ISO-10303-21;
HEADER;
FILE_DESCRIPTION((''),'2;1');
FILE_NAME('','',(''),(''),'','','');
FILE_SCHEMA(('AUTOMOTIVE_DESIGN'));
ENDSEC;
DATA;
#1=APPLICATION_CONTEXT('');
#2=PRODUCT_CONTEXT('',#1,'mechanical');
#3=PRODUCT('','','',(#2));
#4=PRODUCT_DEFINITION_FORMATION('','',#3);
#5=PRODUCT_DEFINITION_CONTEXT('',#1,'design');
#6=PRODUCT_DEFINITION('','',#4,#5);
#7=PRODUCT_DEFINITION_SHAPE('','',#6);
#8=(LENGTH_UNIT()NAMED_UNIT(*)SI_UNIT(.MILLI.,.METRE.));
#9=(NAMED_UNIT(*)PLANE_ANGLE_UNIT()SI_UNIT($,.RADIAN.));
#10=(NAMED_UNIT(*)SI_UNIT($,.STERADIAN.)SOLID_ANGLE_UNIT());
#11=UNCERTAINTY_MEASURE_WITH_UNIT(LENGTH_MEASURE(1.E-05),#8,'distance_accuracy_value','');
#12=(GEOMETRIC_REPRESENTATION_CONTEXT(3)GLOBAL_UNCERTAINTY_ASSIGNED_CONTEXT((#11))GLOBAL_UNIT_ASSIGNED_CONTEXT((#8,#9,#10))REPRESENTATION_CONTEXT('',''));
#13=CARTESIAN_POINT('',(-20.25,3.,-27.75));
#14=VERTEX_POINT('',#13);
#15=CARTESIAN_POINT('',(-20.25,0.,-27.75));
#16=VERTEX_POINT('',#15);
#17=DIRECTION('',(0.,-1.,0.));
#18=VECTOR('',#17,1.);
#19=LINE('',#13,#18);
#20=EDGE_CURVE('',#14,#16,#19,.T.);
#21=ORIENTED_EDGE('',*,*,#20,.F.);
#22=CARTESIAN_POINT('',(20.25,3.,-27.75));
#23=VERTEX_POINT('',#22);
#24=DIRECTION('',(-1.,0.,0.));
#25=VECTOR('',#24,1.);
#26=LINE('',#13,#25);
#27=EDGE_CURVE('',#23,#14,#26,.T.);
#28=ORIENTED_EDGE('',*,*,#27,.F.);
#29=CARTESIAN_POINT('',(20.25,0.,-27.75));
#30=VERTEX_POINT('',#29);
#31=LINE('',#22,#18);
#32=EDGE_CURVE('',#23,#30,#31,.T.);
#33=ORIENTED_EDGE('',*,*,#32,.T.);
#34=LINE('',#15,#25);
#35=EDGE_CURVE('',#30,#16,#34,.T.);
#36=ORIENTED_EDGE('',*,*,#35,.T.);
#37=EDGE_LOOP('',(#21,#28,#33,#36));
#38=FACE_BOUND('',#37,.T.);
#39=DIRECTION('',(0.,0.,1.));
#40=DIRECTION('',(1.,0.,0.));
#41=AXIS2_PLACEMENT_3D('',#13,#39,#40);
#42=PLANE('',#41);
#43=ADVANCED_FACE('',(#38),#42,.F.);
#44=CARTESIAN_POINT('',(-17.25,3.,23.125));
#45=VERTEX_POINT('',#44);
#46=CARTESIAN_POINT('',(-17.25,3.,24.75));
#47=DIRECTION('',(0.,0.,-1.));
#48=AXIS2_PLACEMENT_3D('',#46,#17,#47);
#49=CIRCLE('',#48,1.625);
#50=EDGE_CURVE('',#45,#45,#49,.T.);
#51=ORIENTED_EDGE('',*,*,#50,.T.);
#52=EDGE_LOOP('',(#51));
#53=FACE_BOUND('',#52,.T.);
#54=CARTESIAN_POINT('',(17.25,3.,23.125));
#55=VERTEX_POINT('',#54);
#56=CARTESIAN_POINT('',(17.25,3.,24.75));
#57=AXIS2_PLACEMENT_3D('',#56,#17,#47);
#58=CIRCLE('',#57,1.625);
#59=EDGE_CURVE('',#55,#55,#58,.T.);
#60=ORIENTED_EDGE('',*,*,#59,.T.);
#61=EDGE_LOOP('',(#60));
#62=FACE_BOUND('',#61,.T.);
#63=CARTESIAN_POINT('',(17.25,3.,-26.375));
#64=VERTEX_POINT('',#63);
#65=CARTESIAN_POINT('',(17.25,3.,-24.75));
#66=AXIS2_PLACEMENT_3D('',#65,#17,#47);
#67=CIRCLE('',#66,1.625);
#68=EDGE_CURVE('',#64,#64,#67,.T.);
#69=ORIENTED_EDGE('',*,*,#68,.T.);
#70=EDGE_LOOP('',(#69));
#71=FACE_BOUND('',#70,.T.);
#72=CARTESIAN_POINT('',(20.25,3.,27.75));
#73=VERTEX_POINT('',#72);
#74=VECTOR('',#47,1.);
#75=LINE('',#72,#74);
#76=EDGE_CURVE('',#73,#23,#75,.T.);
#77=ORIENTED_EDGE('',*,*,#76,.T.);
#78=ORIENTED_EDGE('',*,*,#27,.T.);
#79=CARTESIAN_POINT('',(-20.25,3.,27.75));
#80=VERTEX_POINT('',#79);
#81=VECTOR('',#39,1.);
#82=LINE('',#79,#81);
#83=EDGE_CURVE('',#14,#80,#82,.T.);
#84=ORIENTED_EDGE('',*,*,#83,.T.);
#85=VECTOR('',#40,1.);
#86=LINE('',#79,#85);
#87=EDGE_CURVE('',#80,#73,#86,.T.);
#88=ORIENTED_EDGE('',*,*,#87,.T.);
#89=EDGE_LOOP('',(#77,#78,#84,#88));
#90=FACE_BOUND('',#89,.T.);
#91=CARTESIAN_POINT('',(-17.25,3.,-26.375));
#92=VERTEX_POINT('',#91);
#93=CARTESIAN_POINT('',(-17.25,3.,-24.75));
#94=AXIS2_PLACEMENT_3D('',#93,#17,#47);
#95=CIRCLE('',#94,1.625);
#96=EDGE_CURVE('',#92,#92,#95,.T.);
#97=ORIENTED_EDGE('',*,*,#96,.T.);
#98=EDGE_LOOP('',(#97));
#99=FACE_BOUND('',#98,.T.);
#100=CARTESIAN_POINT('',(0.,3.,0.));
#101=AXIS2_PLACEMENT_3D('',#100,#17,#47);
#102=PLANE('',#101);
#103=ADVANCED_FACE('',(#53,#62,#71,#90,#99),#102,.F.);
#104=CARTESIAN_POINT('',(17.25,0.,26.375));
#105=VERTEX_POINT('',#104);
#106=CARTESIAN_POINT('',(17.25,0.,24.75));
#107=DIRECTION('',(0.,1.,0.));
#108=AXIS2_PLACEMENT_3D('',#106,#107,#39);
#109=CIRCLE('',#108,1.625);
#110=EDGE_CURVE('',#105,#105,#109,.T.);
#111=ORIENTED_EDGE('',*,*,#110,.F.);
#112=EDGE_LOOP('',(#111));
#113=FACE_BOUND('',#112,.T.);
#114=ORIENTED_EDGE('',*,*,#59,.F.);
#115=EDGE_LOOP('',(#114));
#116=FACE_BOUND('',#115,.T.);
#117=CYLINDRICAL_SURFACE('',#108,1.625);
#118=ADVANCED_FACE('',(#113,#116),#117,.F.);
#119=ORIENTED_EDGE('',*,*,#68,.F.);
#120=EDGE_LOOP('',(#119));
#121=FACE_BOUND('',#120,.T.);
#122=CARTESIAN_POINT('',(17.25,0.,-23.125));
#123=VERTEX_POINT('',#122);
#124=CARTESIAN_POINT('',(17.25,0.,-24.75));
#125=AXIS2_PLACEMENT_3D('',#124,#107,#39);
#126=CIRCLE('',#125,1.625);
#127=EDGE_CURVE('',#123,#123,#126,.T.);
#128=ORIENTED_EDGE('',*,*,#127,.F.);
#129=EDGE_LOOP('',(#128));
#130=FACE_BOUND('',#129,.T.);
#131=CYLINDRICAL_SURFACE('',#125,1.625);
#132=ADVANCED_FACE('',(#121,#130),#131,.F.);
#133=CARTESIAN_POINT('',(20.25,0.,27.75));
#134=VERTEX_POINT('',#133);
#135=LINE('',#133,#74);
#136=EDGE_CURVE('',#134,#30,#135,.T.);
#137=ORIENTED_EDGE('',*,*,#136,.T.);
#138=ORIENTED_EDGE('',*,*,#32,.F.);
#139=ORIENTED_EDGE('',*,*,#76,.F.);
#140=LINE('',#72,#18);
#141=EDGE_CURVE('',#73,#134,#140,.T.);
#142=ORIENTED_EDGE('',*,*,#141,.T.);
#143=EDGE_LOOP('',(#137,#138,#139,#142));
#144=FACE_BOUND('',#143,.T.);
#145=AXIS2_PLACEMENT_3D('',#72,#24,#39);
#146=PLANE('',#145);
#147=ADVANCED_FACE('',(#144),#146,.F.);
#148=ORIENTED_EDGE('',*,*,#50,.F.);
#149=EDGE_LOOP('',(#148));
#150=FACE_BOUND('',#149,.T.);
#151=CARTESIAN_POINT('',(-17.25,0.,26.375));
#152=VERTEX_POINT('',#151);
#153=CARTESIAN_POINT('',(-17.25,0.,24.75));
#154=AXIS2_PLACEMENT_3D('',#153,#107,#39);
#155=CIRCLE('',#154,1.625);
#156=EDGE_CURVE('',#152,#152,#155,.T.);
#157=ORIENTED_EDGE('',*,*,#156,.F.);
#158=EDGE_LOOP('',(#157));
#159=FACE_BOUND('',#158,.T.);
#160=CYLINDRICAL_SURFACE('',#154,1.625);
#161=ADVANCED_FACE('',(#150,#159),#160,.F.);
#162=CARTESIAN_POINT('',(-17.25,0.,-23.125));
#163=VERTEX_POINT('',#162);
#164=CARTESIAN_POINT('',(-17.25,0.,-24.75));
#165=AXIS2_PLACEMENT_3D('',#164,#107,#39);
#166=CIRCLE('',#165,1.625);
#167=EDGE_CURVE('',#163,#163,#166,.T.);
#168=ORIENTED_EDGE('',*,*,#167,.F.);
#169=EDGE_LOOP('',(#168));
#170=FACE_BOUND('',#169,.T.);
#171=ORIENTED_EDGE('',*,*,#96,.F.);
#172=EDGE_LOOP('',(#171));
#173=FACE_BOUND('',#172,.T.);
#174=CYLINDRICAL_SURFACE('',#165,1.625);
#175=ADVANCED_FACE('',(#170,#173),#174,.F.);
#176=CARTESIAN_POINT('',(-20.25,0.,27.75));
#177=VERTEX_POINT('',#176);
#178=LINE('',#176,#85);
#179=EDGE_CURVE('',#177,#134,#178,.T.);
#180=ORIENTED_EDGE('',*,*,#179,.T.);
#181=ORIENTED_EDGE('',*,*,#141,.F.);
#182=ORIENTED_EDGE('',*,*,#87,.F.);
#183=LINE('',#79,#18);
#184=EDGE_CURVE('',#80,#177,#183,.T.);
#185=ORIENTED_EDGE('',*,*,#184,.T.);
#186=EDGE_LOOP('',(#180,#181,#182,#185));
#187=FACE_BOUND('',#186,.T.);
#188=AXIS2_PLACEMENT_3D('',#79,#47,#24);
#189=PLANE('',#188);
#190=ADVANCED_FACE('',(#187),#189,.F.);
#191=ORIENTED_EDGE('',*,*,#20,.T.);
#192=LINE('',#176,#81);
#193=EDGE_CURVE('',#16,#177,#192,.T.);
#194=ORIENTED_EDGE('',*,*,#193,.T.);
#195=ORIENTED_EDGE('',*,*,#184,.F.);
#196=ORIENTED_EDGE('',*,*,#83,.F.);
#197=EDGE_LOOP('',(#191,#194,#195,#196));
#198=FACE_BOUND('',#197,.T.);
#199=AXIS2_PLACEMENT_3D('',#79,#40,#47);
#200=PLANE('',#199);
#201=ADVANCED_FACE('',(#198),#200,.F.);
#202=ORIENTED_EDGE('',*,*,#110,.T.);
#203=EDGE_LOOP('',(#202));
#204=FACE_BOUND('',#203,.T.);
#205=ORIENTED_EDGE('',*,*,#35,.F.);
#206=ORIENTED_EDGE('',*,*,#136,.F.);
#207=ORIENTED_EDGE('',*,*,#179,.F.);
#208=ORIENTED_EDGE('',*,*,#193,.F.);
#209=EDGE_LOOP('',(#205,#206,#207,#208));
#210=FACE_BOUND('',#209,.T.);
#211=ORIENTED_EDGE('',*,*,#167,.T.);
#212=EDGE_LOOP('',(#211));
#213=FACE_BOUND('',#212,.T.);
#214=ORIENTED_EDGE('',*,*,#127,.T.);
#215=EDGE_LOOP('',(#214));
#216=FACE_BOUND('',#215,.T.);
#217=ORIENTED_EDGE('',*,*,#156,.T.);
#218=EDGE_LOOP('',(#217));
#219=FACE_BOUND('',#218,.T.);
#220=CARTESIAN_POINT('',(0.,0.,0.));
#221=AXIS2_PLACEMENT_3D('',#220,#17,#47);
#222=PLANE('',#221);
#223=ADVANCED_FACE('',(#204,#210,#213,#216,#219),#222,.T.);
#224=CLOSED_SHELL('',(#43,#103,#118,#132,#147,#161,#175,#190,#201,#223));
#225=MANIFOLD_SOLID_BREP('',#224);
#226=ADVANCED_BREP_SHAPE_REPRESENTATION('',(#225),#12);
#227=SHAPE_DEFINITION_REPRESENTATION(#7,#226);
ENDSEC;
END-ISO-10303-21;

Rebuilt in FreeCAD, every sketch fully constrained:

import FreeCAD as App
import Part
import Sketcher
from FreeCAD import Vector


def add_polygon(sketch, points):
    """Adds a closed chain of lines whose ends are joined by coincident constraints."""
    first, n = sketch.GeometryCount, len(points)
    for a, b in zip(points, points[1:] + points[:1]):
        sketch.addGeometry(Part.LineSegment(App.Vector(*a, 0), App.Vector(*b, 0)), False)
    for i in range(n):
        sketch.addConstraint(Sketcher.Constraint("Coincident", first + i, 2, first + (i + 1) % n, 1))

doc = App.newDocument("Part")
params = doc.addObject("Spreadsheet::Sheet", "Params")
for row, (alias, value) in enumerate([
    ("sketch1_width", "40.5 mm"),
    ("sketch1_height", "55.5 mm"),
    ("pad1_length", "3 mm"),
    ("sketch2_diameter", "3.25 mm"),
], start=1):
    params.set(f"A{row}", alias)
    params.set(f"B{row}", "=" + value)
    params.setAlias(f"B{row}", alias)

body = doc.addObject("PartDesign::Body", "Body")

sketch1 = body.newObject("Sketcher::SketchObject", "Sketch")
sketch1.AttachmentSupport = (doc.getObject("XZ_Plane"), [""])
sketch1.MapMode = "FlatFace"
add_polygon(sketch1, [(-20, -28), (-20, 28), (20, 28), (20, -28)])
sketch1.addConstraint(Sketcher.Constraint("Vertical", 0))
sketch1.addConstraint(Sketcher.Constraint("Horizontal", 1))
sketch1.addConstraint(Sketcher.Constraint("Vertical", 2))
sketch1.addConstraint(Sketcher.Constraint("Horizontal", 3))
sketch1.addConstraint(Sketcher.Constraint("Symmetric", 0, 2, 2, 2, -1, 1))
sketch1.addConstraint(Sketcher.Constraint("DistanceX", 1, 1, 1, 2, 40.5))
sketch1.addConstraint(Sketcher.Constraint("DistanceY", 0, 1, 0, 2, 55.5))
sketch1.setExpression("Constraints[9]", "Params.sketch1_width")
sketch1.setExpression("Constraints[10]", "Params.sketch1_height")
pad1 = body.newObject("PartDesign::Pad", "Pad")
pad1.Profile = sketch1
pad1.setExpression("Length", "Params.pad1_length")
pad1.Reversed = True

sketch2 = body.newObject("Sketcher::SketchObject", "Sketch001")
sketch2.AttachmentSupport = (doc.getObject("XZ_Plane"), [""])
sketch2.MapMode = "FlatFace"
sketch2.AttachmentOffset = App.Placement(Vector(0, 0, -3), App.Rotation())
sketch2.addGeometry(Part.Circle(Vector(-17.2, -24.8, 0), Vector(0, 0, 1), 1.6), False)
sketch2.addGeometry(Part.Circle(Vector(17.2, -24.8, 0), Vector(0, 0, 1), 1.6), False)
sketch2.addGeometry(Part.Circle(Vector(17.2, 24.8, 0), Vector(0, 0, 1), 1.6), False)
sketch2.addGeometry(Part.Circle(Vector(-17.2, 24.8, 0), Vector(0, 0, 1), 1.6), False)
sketch2.addConstraint(Sketcher.Constraint("Equal", 0, 1))
sketch2.addConstraint(Sketcher.Constraint("Equal", 1, 2))
sketch2.addConstraint(Sketcher.Constraint("Equal", 2, 3))
sketch2.addConstraint(Sketcher.Constraint("Symmetric", 0, 3, 2, 3, -1, 1))
sketch2.addConstraint(Sketcher.Constraint("Symmetric", 1, 3, 3, 3, -1, 1))
sketch2.addConstraint(Sketcher.Constraint("Symmetric", 0, 3, 1, 3, -2))
sketch2.addConstraint(Sketcher.Constraint("Diameter", 0, 3.25))
sketch2.addConstraint(Sketcher.Constraint("DistanceX", 0, 3, 1, 3, 34.5))
sketch2.addConstraint(Sketcher.Constraint("DistanceY", 1, 3, 2, 3, 49.5))
sketch2.setExpression("Constraints[6]", "Params.sketch2_diameter")
pocket1 = body.newObject("PartDesign::Pocket", "Pocket")
pocket1.Profile = sketch2
pocket1.Type = "ThroughAll"
pocket1.Midplane = True

doc.recompute()
